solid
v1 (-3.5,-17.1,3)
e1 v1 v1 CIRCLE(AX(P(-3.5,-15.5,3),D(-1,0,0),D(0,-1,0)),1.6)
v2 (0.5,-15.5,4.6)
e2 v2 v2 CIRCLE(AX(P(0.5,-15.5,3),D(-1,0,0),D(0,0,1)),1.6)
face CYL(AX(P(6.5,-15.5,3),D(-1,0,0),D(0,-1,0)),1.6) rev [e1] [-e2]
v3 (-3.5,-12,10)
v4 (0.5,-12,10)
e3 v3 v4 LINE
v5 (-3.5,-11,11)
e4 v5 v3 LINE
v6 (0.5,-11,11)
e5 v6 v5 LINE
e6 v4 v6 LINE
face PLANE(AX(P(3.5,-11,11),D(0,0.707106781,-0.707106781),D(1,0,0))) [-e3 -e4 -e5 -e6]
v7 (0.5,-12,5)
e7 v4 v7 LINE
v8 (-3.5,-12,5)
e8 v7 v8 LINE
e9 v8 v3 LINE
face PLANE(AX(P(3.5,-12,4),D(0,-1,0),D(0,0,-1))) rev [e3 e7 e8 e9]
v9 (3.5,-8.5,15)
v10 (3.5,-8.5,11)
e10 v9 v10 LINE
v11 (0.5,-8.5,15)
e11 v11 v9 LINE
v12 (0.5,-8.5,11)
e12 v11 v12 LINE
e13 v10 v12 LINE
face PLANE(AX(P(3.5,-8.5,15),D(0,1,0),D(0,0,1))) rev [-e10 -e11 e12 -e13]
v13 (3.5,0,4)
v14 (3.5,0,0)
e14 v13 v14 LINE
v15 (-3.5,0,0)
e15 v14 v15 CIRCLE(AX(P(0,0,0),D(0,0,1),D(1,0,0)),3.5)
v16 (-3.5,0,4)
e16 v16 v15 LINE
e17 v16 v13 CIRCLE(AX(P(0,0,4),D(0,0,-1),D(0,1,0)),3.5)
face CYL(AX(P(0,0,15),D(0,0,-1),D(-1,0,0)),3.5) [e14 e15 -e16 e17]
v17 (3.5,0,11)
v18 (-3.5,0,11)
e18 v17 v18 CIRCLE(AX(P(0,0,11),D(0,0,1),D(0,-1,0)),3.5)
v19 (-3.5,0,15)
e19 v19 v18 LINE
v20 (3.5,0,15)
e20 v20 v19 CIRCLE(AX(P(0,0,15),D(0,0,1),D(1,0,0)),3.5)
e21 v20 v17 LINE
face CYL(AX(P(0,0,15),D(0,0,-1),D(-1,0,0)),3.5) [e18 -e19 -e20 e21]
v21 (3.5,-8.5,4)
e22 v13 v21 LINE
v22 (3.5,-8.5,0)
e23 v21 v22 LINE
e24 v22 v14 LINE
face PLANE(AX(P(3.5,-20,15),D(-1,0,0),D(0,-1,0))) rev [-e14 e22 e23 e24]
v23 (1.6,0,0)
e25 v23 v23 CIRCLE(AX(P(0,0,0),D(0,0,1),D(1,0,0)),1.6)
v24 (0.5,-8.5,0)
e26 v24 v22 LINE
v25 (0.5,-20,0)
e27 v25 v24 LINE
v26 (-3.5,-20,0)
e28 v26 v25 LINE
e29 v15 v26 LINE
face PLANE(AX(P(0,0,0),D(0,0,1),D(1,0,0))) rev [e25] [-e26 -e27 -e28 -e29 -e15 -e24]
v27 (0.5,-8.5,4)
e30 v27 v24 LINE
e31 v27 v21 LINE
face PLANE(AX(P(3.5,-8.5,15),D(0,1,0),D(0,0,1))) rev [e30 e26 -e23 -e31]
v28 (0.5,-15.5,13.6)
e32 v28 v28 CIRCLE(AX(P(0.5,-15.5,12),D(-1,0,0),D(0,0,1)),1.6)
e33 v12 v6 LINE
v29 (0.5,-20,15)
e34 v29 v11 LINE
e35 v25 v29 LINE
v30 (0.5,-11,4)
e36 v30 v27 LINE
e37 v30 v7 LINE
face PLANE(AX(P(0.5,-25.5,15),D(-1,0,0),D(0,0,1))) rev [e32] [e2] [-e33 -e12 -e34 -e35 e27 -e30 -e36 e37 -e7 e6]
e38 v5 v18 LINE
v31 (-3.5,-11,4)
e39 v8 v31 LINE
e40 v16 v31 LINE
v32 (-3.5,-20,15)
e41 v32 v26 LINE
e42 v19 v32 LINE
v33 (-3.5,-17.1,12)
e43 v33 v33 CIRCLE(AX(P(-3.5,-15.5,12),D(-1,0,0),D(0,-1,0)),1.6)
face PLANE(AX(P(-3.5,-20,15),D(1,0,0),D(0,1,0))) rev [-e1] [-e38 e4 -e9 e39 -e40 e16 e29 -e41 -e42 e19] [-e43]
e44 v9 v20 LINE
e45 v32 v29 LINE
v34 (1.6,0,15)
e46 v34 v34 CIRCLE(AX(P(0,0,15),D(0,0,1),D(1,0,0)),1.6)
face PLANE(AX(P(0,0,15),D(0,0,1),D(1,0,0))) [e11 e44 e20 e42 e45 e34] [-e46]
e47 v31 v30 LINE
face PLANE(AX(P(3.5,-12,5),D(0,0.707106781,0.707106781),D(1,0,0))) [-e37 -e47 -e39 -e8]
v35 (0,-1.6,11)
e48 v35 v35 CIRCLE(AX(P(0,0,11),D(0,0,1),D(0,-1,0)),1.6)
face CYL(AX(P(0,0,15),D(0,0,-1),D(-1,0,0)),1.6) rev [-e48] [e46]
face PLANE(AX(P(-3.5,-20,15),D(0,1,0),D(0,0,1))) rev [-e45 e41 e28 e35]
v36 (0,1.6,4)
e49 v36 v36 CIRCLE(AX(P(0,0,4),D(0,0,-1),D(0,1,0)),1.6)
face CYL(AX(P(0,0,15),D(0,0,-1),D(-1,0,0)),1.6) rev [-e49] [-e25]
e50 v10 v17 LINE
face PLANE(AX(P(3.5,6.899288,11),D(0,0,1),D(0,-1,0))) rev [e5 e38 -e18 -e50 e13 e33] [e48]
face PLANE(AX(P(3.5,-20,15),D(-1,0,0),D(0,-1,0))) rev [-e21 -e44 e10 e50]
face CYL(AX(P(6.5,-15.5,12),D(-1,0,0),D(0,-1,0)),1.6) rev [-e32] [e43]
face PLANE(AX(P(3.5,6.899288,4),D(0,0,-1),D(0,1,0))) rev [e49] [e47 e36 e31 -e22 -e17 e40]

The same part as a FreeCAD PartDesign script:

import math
import FreeCAD as App
import Part
import Sketcher
Q = App.Units.Quantity


def edges_at(feature, points):
    """Names of the edges that pass closest to the given points."""
    edges = feature.Shape.Edges
    near = lambda p: min(range(len(edges)), key=lambda i: edges[i].distToShape(Part.Vertex(*p))[0])
    return sorted({f"Edge{near(p) + 1}" for p in points})

doc = App.newDocument("Part")
body = doc.addObject("PartDesign::Body", "Body")

# Sketch on XY plane
sketch1 = body.newObject("Sketcher::SketchObject", "Sketch")
sketch1.AttachmentSupport = (doc.getObject("XY_Plane"), [""])
sketch1.MapMode = "FlatFace"
sketch1.addGeometry(Part.LineSegment(App.Vector(-3.5, 0, 0), App.Vector(-3.5, -20, 0)), False)
sketch1.addGeometry(Part.LineSegment(App.Vector(-3.5, -20, 0), App.Vector(3.5, -20, 0)), False)
sketch1.addGeometry(Part.LineSegment(App.Vector(3.5, -20, 0), App.Vector(3.5, 0, 0)), False)
sketch1.addGeometry(Part.ArcOfCircle(Part.Circle(App.Vector(0, 0, 0), App.Vector(0, 0, 1), 3.5), math.radians(0), math.radians(180)), False)
sketch1.addGeometry(Part.Circle(App.Vector(0, 0, 0), App.Vector(0, 0, 1), 1.6), False)
sketch1.addConstraint(Sketcher.Constraint("Coincident", 0, 2, 1, 1))
sketch1.addConstraint(Sketcher.Constraint("Coincident", 1, 2, 2, 1))
sketch1.addConstraint(Sketcher.Constraint("Tangent", 2, 2, 3, 1))
sketch1.addConstraint(Sketcher.Constraint("Tangent", 3, 2, 0, 1))
sketch1.addConstraint(Sketcher.Constraint("Vertical", 0))
sketch1.addConstraint(Sketcher.Constraint("Horizontal", 1))
sketch1.addConstraint(Sketcher.Constraint("Vertical", 2))
sketch1.addConstraint(Sketcher.Constraint("Coincident", 3, 3, -1, 1))
sketch1.addConstraint(Sketcher.Constraint("Coincident", 4, 3, -1, 1))
sketch1.addConstraint(Sketcher.Constraint("Diameter", 4, Q("3.2 mm")))
sketch1.addConstraint(Sketcher.Constraint("Radius", 3, Q("3.5 mm")))
sketch1.addConstraint(Sketcher.Constraint("DistanceY", 0, 2, 0, 1, Q("20 mm")))
pad1 = body.newObject("PartDesign::Pad", "Pad")
pad1.Profile = sketch1
pad1.Length = 15

# Sketch on YZ plane
sketch2 = body.newObject("Sketcher::SketchObject", "Sketch001")
sketch2.AttachmentSupport = (doc.getObject("YZ_Plane"), [""])
sketch2.MapMode = "FlatFace"
sketch2.AttachmentOffset = App.Placement(App.Vector(0, 0, -3.5), App.Rotation())
sketch2.addGeometry(Part.LineSegment(App.Vector(7, 4, 0), App.Vector(-12, 4, 0)), False)
sketch2.addGeometry(Part.LineSegment(App.Vector(-12, 4, 0), App.Vector(-12, 11, 0)), False)
sketch2.addGeometry(Part.LineSegment(App.Vector(-12, 11, 0), App.Vector(7, 11, 0)), False)
sketch2.addGeometry(Part.LineSegment(App.Vector(7, 11, 0), App.Vector(7, 4, 0)), False)
sketch2.addConstraint(Sketcher.Constraint("Coincident", 0, 2, 1, 1))
sketch2.addConstraint(Sketcher.Constraint("Coincident", 1, 2, 2, 1))
sketch2.addConstraint(Sketcher.Constraint("Coincident", 2, 2, 3, 1))
sketch2.addConstraint(Sketcher.Constraint("Coincident", 3, 2, 0, 1))
sketch2.addConstraint(Sketcher.Constraint("Horizontal", 0))
sketch2.addConstraint(Sketcher.Constraint("Vertical", 1))
sketch2.addConstraint(Sketcher.Constraint("Horizontal", 2))
sketch2.addConstraint(Sketcher.Constraint("Vertical", 3))
sketch2.addConstraint(Sketcher.Constraint("DistanceY", 1, 1, 1, 2, Q("7 mm")))
sketch2.addConstraint(Sketcher.Constraint("DistanceX", 0, 2, -1, 1, Q("12 mm")))
sketch2.addConstraint(Sketcher.Constraint("DistanceY", -1, 1, 0, 2, Q("4 mm")))
sketch2.addConstraint(Sketcher.Constraint("DistanceX", 0, 2, 0, 1, Q("18.899288 mm")))
pocket1 = body.newObject("PartDesign::Pocket", "Pocket")
pocket1.Profile = sketch2
pocket1.Type = "ThroughAll"
pocket1.Reversed = True

# Sketch on XY plane
sketch3 = body.newObject("Sketcher::SketchObject", "Sketch002")
sketch3.AttachmentSupport = (doc.getObject("XY_Plane"), [""])
sketch3.MapMode = "FlatFace"
sketch3.addGeometry(Part.LineSegment(App.Vector(3.5, -8.5, 0), App.Vector(3.5, -25.5, 0)), False)
sketch3.addGeometry(Part.LineSegment(App.Vector(3.5, -25.5, 0), App.Vector(0.5, -25.5, 0)), False)
sketch3.addGeometry(Part.LineSegment(App.Vector(0.5, -25.5, 0), App.Vector(0.5, -8.5, 0)), False)
sketch3.addGeometry(Part.LineSegment(App.Vector(0.5, -8.5, 0), App.Vector(3.5, -8.5, 0)), False)
sketch3.addConstraint(Sketcher.Constraint("Coincident", 0, 2, 1, 1))
sketch3.addConstraint(Sketcher.Constraint("Coincident", 1, 2, 2, 1))
sketch3.addConstraint(Sketcher.Constraint("Coincident", 2, 2, 3, 1))
sketch3.addConstraint(Sketcher.Constraint("Coincident", 3, 2, 0, 1))
sketch3.addConstraint(Sketcher.Constraint("Vertical", 0))
sketch3.addConstraint(Sketcher.Constraint("Horizontal", 1))
sketch3.addConstraint(Sketcher.Constraint("Vertical", 2))
sketch3.addConstraint(Sketcher.Constraint("Horizontal", 3))
sketch3.addConstraint(Sketcher.Constraint("DistanceX", 1, 2, 1, 1, Q("3 mm")))
sketch3.addConstraint(Sketcher.Constraint("DistanceY", 0, 2, 0, 1, Q("17 mm")))
sketch3.addConstraint(Sketcher.Constraint("DistanceX", -1, 1, 0, 2, Q("3.5 mm")))
sketch3.addConstraint(Sketcher.Constraint("DistanceY", 0, 2, -1, 1, Q("25.5 mm")))
pocket2 = body.newObject("PartDesign::Pocket", "Pocket001")
pocket2.Profile = sketch3
pocket2.Type = "ThroughAll"
pocket2.Reversed = True

# Sketch on YZ plane
sketch4 = body.newObject("Sketcher::SketchObject", "Sketch003")
sketch4.AttachmentSupport = (doc.getObject("YZ_Plane"), [""])
sketch4.MapMode = "FlatFace"
sketch4.AttachmentOffset = App.Placement(App.Vector(0, 0, -3.5), App.Rotation())
sketch4.addGeometry(Part.Circle(App.Vector(-15.5, 12, 0), App.Vector(0, 0, 1), 1.6), False)
sketch4.addGeometry(Part.Circle(App.Vector(-15.5, 3, 0), App.Vector(0, 0, 1), 1.6), False)
sketch4.addConstraint(Sketcher.Constraint("Equal", 0, 1))
sketch4.addConstraint(Sketcher.Constraint("Vertical", 0, 3, 1, 3))
sketch4.addConstraint(Sketcher.Constraint("Diameter", 0, Q("3.2 mm")))
sketch4.addConstraint(Sketcher.Constraint("DistanceY", -1, 1, 0, 3, Q("12 mm")))
sketch4.addConstraint(Sketcher.Constraint("DistanceY", -1, 1, 1, 3, Q("3 mm")))
sketch4.addConstraint(Sketcher.Constraint("DistanceX", 0, 3, -1, 1, Q("15.5 mm")))
pocket3 = body.newObject("PartDesign::Pocket", "Pocket002")
pocket3.Profile = sketch4
pocket3.Length = 10
pocket3.Reversed = True
doc.recompute()

chamfer = body.newObject("PartDesign::Chamfer", "Chamfer")
chamfer.Base = (pocket3, edges_at(pocket3, [(-1.5, -12, 11), (-1.5, -12, 4)]))
chamfer.Size = 1

doc.recompute()
